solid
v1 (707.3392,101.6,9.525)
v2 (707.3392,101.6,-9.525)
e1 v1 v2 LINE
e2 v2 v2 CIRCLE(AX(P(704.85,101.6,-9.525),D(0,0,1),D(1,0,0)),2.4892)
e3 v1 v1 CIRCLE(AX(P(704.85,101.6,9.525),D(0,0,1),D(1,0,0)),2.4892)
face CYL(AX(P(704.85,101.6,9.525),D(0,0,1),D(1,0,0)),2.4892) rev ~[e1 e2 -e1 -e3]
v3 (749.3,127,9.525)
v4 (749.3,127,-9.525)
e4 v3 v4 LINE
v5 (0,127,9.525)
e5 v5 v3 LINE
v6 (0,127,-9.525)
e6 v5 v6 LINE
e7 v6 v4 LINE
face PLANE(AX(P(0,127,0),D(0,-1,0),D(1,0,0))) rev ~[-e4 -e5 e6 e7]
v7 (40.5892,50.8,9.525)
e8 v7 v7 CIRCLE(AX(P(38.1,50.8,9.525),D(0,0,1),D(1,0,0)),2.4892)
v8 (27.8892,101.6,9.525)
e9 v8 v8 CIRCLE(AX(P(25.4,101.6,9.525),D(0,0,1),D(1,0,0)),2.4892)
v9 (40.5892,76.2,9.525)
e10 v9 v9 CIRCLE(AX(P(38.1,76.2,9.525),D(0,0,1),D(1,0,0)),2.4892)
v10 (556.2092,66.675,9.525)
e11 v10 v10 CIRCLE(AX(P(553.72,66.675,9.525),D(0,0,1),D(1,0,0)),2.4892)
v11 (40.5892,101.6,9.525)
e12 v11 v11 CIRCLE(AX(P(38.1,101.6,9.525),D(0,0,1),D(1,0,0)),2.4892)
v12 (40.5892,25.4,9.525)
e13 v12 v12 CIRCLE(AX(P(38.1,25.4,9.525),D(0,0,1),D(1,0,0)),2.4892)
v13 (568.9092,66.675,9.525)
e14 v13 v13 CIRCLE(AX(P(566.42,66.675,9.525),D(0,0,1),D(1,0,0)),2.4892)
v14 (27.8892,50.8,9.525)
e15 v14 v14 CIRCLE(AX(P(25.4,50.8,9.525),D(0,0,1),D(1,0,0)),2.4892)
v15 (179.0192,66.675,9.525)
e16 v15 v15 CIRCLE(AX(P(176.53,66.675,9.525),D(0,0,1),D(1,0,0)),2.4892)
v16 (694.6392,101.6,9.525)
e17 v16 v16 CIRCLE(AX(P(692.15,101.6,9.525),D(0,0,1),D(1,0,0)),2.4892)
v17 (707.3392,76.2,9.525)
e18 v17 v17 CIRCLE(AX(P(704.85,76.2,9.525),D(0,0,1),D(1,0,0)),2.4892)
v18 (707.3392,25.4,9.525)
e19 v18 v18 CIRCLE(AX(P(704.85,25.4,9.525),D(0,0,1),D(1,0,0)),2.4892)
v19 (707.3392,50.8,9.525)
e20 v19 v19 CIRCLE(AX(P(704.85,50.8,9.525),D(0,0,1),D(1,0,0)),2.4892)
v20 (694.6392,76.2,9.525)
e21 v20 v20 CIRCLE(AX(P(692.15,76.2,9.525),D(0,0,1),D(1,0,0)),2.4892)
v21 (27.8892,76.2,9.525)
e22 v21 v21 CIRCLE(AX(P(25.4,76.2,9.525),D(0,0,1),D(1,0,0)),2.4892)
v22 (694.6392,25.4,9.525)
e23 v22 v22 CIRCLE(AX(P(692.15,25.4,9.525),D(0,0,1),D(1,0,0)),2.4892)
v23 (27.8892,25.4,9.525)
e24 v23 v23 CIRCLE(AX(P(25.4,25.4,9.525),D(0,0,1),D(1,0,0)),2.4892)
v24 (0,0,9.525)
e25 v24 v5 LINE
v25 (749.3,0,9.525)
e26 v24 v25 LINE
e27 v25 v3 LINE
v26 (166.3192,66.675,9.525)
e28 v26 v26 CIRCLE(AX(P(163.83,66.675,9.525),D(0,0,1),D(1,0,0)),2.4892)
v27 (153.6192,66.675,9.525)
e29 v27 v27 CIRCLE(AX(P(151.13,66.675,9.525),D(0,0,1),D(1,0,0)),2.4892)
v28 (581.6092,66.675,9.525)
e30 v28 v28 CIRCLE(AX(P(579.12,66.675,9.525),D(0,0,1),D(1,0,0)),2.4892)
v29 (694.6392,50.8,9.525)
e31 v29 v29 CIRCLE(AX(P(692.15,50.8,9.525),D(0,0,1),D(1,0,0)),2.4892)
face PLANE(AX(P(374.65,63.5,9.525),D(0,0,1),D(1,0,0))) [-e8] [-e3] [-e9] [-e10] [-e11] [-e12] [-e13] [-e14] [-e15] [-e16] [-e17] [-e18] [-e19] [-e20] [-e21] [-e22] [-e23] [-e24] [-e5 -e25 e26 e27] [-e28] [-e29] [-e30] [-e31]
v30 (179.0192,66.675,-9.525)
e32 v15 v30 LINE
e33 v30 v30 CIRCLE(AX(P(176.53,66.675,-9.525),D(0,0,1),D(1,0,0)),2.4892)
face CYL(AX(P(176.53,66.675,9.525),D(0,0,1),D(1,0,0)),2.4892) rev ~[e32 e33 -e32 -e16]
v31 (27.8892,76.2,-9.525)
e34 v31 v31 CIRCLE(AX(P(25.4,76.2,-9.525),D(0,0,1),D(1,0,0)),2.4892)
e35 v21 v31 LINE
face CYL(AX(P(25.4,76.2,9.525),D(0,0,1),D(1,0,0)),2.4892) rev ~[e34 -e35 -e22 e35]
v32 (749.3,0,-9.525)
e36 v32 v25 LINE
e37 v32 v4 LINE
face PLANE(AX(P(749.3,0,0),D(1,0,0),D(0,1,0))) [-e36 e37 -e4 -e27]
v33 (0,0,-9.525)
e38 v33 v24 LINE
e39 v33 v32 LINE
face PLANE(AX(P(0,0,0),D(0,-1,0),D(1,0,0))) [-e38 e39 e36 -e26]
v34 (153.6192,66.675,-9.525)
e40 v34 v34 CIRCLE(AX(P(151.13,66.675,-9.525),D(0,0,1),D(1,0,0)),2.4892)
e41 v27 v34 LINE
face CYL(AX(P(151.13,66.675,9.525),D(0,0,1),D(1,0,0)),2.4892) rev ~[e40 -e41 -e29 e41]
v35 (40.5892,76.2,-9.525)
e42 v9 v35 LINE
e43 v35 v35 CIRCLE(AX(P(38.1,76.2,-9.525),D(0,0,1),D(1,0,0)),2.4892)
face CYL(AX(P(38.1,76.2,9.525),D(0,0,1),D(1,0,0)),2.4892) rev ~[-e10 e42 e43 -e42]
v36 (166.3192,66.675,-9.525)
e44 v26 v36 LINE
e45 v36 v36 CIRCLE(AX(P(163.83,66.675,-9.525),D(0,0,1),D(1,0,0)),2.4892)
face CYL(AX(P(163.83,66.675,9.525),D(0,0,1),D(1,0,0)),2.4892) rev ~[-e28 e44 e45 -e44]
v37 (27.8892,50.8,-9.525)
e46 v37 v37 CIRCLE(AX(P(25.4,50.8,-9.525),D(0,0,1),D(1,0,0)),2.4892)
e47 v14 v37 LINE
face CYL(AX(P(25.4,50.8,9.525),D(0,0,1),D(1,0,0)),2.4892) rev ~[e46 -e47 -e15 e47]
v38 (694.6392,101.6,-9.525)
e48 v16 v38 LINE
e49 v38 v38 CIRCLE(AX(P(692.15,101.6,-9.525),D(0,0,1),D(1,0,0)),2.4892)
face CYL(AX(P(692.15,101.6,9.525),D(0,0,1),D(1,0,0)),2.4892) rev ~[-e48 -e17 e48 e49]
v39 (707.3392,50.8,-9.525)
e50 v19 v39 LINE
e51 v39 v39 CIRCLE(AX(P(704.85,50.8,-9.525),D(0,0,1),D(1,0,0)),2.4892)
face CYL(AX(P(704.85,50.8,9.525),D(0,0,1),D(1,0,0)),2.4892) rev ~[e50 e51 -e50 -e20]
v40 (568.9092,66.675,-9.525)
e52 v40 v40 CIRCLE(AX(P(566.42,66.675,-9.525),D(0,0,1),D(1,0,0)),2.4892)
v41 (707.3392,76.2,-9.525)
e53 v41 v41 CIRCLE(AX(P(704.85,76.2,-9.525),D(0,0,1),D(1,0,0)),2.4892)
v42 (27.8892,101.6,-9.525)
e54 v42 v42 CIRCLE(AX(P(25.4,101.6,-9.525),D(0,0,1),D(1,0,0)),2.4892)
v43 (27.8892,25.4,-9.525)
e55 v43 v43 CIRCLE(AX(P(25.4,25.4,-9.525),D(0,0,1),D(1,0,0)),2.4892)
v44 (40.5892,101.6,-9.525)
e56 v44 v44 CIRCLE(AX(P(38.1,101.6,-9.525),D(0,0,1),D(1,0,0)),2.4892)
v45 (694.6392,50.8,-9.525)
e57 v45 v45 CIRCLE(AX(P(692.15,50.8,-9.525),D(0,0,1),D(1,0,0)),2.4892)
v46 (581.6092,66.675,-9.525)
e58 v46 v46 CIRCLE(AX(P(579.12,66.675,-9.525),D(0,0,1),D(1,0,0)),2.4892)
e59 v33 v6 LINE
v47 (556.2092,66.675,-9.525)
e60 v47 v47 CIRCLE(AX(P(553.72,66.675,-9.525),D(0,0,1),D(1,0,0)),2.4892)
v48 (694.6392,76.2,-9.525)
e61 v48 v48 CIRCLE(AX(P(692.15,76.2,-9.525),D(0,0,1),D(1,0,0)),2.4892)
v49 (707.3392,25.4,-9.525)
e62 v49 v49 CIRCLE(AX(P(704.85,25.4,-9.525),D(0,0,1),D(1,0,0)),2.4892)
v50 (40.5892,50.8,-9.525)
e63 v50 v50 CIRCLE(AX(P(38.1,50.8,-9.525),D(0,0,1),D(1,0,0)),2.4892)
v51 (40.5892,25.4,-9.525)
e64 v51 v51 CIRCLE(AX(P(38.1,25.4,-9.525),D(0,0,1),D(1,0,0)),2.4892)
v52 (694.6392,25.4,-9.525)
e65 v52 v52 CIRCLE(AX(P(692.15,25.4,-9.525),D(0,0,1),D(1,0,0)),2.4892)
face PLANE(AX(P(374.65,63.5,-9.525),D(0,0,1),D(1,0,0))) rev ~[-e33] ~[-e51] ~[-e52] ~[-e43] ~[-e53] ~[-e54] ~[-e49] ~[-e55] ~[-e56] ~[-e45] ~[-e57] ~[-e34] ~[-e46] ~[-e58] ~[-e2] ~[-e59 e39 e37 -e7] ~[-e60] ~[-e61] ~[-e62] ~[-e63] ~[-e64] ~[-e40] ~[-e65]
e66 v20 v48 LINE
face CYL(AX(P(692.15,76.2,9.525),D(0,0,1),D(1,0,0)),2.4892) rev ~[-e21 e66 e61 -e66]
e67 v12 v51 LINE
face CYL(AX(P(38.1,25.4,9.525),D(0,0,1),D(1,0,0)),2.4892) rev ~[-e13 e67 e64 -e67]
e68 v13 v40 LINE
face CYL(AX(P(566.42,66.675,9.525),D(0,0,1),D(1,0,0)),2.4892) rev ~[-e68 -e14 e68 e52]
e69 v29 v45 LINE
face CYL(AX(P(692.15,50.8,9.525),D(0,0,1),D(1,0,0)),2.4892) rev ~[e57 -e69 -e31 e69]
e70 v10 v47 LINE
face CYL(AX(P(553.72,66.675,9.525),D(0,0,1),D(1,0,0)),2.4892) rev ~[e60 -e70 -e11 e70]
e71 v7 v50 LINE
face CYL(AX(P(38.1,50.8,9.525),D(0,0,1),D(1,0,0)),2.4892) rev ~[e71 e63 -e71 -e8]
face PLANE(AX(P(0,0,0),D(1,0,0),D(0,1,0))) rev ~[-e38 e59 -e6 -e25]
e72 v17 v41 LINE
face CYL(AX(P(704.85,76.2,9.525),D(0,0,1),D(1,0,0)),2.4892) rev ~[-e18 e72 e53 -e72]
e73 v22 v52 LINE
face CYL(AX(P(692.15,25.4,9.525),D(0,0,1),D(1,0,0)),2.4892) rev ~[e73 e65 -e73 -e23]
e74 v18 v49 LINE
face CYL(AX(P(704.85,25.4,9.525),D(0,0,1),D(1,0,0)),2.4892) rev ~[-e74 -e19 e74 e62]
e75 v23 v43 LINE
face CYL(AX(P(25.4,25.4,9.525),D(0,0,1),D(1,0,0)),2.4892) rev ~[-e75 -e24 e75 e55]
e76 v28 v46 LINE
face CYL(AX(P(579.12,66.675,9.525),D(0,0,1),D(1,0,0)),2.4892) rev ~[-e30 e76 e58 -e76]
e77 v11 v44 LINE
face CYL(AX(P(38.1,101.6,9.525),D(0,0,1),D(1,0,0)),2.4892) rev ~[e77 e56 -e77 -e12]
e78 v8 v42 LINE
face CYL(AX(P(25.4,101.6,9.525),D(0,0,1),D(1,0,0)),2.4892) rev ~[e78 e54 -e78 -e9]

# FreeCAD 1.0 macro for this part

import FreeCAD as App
import Part
import Sketcher
Q = App.Units.Quantity

doc = App.newDocument("Part")
params = doc.addObject("Spreadsheet::Sheet", "Params")
for row, (alias, value) in enumerate([
    ("sketch1_height", "5 in"),
    ("sketch1_width", "29.5 in"),
    ("pad1_length", "0.75 in"),
    ("sketch2_diameter", "0.196 in"),
], start=1):
    params.set(f"A{row}", alias)
    params.set(f"B{row}", "=" + value)
    params.setAlias(f"B{row}", alias)

body = doc.addObject("PartDesign::Body", "Body")

# Sketch on XY plane
sketch1 = body.newObject("Sketcher::SketchObject", "Sketch")
sketch1.AttachmentSupport = (doc.getObject("XY_Plane"), [""])
sketch1.MapMode = "FlatFace"
sketch1.addGeometry([
    Part.LineSegment(App.Vector(0, 127, 0), App.Vector(0, 0, 0)),
    Part.LineSegment(App.Vector(0, 0, 0), App.Vector(749, 0, 0)),
    Part.LineSegment(App.Vector(749, 0, 0), App.Vector(749, 127, 0)),
    Part.LineSegment(App.Vector(749, 127, 0), App.Vector(0, 127, 0)),
], False)
sketch1.addConstraint([
    Sketcher.Constraint("Coincident", 0, 2, 1, 1),
    Sketcher.Constraint("Coincident", 1, 2, 2, 1),
    Sketcher.Constraint("Coincident", 2, 2, 3, 1),
    Sketcher.Constraint("Coincident", 3, 2, 0, 1),
    Sketcher.Constraint("Vertical", 0),
    Sketcher.Constraint("Horizontal", 1),
    Sketcher.Constraint("Vertical", 2),
    Sketcher.Constraint("Horizontal", 3),
    Sketcher.Constraint("Coincident", 0, 2, -1, 1),
    Sketcher.Constraint("DistanceY", 0, 2, 0, 1, Q("5 in")),
    Sketcher.Constraint("DistanceX", 1, 1, 1, 2, Q("29.5 in")),
])
sketch1.setExpression("Constraints[9]", "Params.sketch1_height")
sketch1.setExpression("Constraints[10]", "Params.sketch1_width")
pad1 = body.newObject("PartDesign::Pad", "Pad")
pad1.Profile = sketch1
pad1.setExpression("Length", "Params.pad1_length")
pad1.Midplane = True

# Sketch on XY plane
sketch2 = body.newObject("Sketcher::SketchObject", "Sketch001")
sketch2.AttachmentSupport = (doc.getObject("XY_Plane"), [""])
sketch2.MapMode = "FlatFace"
sketch2.AttachmentOffset = App.Placement(App.Vector(0, 0, 0.375 * 25.4), App.Rotation())
sketch2.addGeometry([
    Part.Circle(App.Vector(566.4, 66.7, 0), App.Vector(0, 0, 1), 2.5),  # 0
    Part.Circle(App.Vector(553.7, 66.7, 0), App.Vector(0, 0, 1), 2.5),  # 1
    Part.Circle(App.Vector(163.8, 66.7, 0), App.Vector(0, 0, 1), 2.5),  # 2
    Part.Circle(App.Vector(176.5, 66.7, 0), App.Vector(0, 0, 1), 2.5),  # 3
    Part.Circle(App.Vector(579.1, 66.7, 0), App.Vector(0, 0, 1), 2.5),  # 4
    Part.Circle(App.Vector(151.1, 66.7, 0), App.Vector(0, 0, 1), 2.5),  # 5
    Part.Circle(App.Vector(692.1, 101.6, 0), App.Vector(0, 0, 1), 2.5),  # 6
    Part.Circle(App.Vector(704.9, 101.6, 0), App.Vector(0, 0, 1), 2.5),  # 7
    Part.Circle(App.Vector(704.9, 76.2, 0), App.Vector(0, 0, 1), 2.5),  # 8
    Part.Circle(App.Vector(704.9, 50.8, 0), App.Vector(0, 0, 1), 2.5),  # 9
    Part.Circle(App.Vector(704.9, 25.4, 0), App.Vector(0, 0, 1), 2.5),  # 10
    Part.Circle(App.Vector(692.1, 76.2, 0), App.Vector(0, 0, 1), 2.5),  # 11
    Part.Circle(App.Vector(692.1, 50.8, 0), App.Vector(0, 0, 1), 2.5),  # 12
    Part.Circle(App.Vector(692.1, 25.4, 0), App.Vector(0, 0, 1), 2.5),  # 13
    Part.Circle(App.Vector(25.4, 101.6, 0), App.Vector(0, 0, 1), 2.5),  # 14
    Part.Circle(App.Vector(38.1, 101.6, 0), App.Vector(0, 0, 1), 2.5),  # 15
    Part.Circle(App.Vector(38.1, 76.2, 0), App.Vector(0, 0, 1), 2.5),  # 16
    Part.Circle(App.Vector(38.1, 50.8, 0), App.Vector(0, 0, 1), 2.5),  # 17
    Part.Circle(App.Vector(38.1, 25.4, 0), App.Vector(0, 0, 1), 2.5),  # 18
    Part.Circle(App.Vector(25.4, 76.2, 0), App.Vector(0, 0, 1), 2.5),  # 19
    Part.Circle(App.Vector(25.4, 50.8, 0), App.Vector(0, 0, 1), 2.5),  # 20
    Part.Circle(App.Vector(25.4, 25.4, 0), App.Vector(0, 0, 1), 2.5),  # 21
], False)
sketch2.addConstraint([
    Sketcher.Constraint("Equal", 0, 1),
    Sketcher.Constraint("Equal", 1, 2),
    Sketcher.Constraint("Equal", 2, 3),
    Sketcher.Constraint("Equal", 3, 4),
    Sketcher.Constraint("Equal", 4, 5),
    Sketcher.Constraint("Equal", 5, 6),
    Sketcher.Constraint("Equal", 6, 7),
    Sketcher.Constraint("Equal", 7, 8),
    Sketcher.Constraint("Equal", 8, 9),
    Sketcher.Constraint("Equal", 9, 10),
    Sketcher.Constraint("Equal", 10, 11),
    Sketcher.Constraint("Equal", 11, 12),
    Sketcher.Constraint("Equal", 12, 13),
    Sketcher.Constraint("Equal", 13, 14),
    Sketcher.Constraint("Equal", 14, 15),
    Sketcher.Constraint("Equal", 15, 16),
    Sketcher.Constraint("Equal", 16, 17),
    Sketcher.Constraint("Equal", 17, 18),
    Sketcher.Constraint("Equal", 18, 19),
    Sketcher.Constraint("Equal", 19, 20),
    Sketcher.Constraint("Equal", 20, 21),
    Sketcher.Constraint("Horizontal", 0, 3, 1, 3),
    Sketcher.Constraint("Horizontal", 1, 3, 2, 3),
    Sketcher.Constraint("Horizontal", 2, 3, 3, 3),
    Sketcher.Constraint("Horizontal", 3, 3, 4, 3),
    Sketcher.Constraint("Horizontal", 4, 3, 5, 3),
    Sketcher.Constraint("Horizontal", 6, 3, 7, 3),
    Sketcher.Constraint("Horizontal", 8, 3, 11, 3),
    Sketcher.Constraint("Horizontal", 9, 3, 12, 3),
    Sketcher.Constraint("Horizontal", 10, 3, 13, 3),
    Sketcher.Constraint("Horizontal", 7, 3, 14, 3),
    Sketcher.Constraint("Horizontal", 14, 3, 15, 3),
    Sketcher.Constraint("Horizontal", 11, 3, 16, 3),
    Sketcher.Constraint("Horizontal", 12, 3, 17, 3),
    Sketcher.Constraint("Horizontal", 13, 3, 18, 3),
    Sketcher.Constraint("Horizontal", 16, 3, 19, 3),
    Sketcher.Constraint("Horizontal", 17, 3, 20, 3),
    Sketcher.Constraint("Horizontal", 18, 3, 21, 3),
    Sketcher.Constraint("Vertical", 7, 3, 8, 3),
    Sketcher.Constraint("Vertical", 8, 3, 9, 3),
    Sketcher.Constraint("Vertical", 9, 3, 10, 3),
    Sketcher.Constraint("Vertical", 6, 3, 11, 3),
    Sketcher.Constraint("Vertical", 11, 3, 12, 3),
    Sketcher.Constraint("Vertical", 12, 3, 13, 3),
    Sketcher.Constraint("Vertical", 15, 3, 16, 3),
    Sketcher.Constraint("Vertical", 16, 3, 17, 3),
    Sketcher.Constraint("Vertical", 17, 3, 18, 3),
    Sketcher.Constraint("Vertical", 14, 3, 19, 3),
    Sketcher.Constraint("Vertical", 19, 3, 20, 3),
    Sketcher.Constraint("Vertical", 20, 3, 21, 3),
    Sketcher.Constraint("Diameter", 0, Q("0.196 in")),
    Sketcher.Constraint("DistanceY", -1, 1, 6, 3, Q("4 in")),
    Sketcher.Constraint("DistanceY", -1, 1, 8, 3, Q("3 in")),
    Sketcher.Constraint("DistanceY", -1, 1, 9, 3, Q("2 in")),
    Sketcher.Constraint("DistanceY", -1, 1, 10, 3, Q("1 in")),
    Sketcher.Constraint("DistanceX", -1, 1, 14, 3, Q("1 in")),
    Sketcher.Constraint("DistanceX", 1, 3, 4, 3, Q("1 in")),
    Sketcher.Constraint("DistanceX", 5, 3, 3, 3, Q("1 in")),
    Sketcher.Constraint("DistanceX", -1, 1, 0, 3, Q("22.3 in")),
    Sketcher.Constraint("DistanceX", -1, 1, 1, 3, Q("21.8 in")),
    Sketcher.Constraint("DistanceX", -1, 1, 15, 3, Q("1.5 in")),
    Sketcher.Constraint("DistanceX", 2, 3, 3, 3, Q("0.5 in")),
    Sketcher.Constraint("DistanceX", 3, 3, 6, 3, Q("20.3 in")),
    Sketcher.Constraint("DistanceX", 6, 3, 7, 3, Q("0.5 in")),
    Sketcher.Constraint("DistanceX", -1, 1, 2, 3, Q("6.45 in")),
    Sketcher.Constraint("DistanceY", -1, 1, 0, 3, Q("2.625 in")),
])
sketch2.setExpression("Constraints[50]", "Params.sketch2_diameter")
pocket1 = body.newObject("PartDesign::Pocket", "Pocket")
pocket1.Profile = sketch2
pocket1.Type = "ThroughAll"

doc.recompute()
